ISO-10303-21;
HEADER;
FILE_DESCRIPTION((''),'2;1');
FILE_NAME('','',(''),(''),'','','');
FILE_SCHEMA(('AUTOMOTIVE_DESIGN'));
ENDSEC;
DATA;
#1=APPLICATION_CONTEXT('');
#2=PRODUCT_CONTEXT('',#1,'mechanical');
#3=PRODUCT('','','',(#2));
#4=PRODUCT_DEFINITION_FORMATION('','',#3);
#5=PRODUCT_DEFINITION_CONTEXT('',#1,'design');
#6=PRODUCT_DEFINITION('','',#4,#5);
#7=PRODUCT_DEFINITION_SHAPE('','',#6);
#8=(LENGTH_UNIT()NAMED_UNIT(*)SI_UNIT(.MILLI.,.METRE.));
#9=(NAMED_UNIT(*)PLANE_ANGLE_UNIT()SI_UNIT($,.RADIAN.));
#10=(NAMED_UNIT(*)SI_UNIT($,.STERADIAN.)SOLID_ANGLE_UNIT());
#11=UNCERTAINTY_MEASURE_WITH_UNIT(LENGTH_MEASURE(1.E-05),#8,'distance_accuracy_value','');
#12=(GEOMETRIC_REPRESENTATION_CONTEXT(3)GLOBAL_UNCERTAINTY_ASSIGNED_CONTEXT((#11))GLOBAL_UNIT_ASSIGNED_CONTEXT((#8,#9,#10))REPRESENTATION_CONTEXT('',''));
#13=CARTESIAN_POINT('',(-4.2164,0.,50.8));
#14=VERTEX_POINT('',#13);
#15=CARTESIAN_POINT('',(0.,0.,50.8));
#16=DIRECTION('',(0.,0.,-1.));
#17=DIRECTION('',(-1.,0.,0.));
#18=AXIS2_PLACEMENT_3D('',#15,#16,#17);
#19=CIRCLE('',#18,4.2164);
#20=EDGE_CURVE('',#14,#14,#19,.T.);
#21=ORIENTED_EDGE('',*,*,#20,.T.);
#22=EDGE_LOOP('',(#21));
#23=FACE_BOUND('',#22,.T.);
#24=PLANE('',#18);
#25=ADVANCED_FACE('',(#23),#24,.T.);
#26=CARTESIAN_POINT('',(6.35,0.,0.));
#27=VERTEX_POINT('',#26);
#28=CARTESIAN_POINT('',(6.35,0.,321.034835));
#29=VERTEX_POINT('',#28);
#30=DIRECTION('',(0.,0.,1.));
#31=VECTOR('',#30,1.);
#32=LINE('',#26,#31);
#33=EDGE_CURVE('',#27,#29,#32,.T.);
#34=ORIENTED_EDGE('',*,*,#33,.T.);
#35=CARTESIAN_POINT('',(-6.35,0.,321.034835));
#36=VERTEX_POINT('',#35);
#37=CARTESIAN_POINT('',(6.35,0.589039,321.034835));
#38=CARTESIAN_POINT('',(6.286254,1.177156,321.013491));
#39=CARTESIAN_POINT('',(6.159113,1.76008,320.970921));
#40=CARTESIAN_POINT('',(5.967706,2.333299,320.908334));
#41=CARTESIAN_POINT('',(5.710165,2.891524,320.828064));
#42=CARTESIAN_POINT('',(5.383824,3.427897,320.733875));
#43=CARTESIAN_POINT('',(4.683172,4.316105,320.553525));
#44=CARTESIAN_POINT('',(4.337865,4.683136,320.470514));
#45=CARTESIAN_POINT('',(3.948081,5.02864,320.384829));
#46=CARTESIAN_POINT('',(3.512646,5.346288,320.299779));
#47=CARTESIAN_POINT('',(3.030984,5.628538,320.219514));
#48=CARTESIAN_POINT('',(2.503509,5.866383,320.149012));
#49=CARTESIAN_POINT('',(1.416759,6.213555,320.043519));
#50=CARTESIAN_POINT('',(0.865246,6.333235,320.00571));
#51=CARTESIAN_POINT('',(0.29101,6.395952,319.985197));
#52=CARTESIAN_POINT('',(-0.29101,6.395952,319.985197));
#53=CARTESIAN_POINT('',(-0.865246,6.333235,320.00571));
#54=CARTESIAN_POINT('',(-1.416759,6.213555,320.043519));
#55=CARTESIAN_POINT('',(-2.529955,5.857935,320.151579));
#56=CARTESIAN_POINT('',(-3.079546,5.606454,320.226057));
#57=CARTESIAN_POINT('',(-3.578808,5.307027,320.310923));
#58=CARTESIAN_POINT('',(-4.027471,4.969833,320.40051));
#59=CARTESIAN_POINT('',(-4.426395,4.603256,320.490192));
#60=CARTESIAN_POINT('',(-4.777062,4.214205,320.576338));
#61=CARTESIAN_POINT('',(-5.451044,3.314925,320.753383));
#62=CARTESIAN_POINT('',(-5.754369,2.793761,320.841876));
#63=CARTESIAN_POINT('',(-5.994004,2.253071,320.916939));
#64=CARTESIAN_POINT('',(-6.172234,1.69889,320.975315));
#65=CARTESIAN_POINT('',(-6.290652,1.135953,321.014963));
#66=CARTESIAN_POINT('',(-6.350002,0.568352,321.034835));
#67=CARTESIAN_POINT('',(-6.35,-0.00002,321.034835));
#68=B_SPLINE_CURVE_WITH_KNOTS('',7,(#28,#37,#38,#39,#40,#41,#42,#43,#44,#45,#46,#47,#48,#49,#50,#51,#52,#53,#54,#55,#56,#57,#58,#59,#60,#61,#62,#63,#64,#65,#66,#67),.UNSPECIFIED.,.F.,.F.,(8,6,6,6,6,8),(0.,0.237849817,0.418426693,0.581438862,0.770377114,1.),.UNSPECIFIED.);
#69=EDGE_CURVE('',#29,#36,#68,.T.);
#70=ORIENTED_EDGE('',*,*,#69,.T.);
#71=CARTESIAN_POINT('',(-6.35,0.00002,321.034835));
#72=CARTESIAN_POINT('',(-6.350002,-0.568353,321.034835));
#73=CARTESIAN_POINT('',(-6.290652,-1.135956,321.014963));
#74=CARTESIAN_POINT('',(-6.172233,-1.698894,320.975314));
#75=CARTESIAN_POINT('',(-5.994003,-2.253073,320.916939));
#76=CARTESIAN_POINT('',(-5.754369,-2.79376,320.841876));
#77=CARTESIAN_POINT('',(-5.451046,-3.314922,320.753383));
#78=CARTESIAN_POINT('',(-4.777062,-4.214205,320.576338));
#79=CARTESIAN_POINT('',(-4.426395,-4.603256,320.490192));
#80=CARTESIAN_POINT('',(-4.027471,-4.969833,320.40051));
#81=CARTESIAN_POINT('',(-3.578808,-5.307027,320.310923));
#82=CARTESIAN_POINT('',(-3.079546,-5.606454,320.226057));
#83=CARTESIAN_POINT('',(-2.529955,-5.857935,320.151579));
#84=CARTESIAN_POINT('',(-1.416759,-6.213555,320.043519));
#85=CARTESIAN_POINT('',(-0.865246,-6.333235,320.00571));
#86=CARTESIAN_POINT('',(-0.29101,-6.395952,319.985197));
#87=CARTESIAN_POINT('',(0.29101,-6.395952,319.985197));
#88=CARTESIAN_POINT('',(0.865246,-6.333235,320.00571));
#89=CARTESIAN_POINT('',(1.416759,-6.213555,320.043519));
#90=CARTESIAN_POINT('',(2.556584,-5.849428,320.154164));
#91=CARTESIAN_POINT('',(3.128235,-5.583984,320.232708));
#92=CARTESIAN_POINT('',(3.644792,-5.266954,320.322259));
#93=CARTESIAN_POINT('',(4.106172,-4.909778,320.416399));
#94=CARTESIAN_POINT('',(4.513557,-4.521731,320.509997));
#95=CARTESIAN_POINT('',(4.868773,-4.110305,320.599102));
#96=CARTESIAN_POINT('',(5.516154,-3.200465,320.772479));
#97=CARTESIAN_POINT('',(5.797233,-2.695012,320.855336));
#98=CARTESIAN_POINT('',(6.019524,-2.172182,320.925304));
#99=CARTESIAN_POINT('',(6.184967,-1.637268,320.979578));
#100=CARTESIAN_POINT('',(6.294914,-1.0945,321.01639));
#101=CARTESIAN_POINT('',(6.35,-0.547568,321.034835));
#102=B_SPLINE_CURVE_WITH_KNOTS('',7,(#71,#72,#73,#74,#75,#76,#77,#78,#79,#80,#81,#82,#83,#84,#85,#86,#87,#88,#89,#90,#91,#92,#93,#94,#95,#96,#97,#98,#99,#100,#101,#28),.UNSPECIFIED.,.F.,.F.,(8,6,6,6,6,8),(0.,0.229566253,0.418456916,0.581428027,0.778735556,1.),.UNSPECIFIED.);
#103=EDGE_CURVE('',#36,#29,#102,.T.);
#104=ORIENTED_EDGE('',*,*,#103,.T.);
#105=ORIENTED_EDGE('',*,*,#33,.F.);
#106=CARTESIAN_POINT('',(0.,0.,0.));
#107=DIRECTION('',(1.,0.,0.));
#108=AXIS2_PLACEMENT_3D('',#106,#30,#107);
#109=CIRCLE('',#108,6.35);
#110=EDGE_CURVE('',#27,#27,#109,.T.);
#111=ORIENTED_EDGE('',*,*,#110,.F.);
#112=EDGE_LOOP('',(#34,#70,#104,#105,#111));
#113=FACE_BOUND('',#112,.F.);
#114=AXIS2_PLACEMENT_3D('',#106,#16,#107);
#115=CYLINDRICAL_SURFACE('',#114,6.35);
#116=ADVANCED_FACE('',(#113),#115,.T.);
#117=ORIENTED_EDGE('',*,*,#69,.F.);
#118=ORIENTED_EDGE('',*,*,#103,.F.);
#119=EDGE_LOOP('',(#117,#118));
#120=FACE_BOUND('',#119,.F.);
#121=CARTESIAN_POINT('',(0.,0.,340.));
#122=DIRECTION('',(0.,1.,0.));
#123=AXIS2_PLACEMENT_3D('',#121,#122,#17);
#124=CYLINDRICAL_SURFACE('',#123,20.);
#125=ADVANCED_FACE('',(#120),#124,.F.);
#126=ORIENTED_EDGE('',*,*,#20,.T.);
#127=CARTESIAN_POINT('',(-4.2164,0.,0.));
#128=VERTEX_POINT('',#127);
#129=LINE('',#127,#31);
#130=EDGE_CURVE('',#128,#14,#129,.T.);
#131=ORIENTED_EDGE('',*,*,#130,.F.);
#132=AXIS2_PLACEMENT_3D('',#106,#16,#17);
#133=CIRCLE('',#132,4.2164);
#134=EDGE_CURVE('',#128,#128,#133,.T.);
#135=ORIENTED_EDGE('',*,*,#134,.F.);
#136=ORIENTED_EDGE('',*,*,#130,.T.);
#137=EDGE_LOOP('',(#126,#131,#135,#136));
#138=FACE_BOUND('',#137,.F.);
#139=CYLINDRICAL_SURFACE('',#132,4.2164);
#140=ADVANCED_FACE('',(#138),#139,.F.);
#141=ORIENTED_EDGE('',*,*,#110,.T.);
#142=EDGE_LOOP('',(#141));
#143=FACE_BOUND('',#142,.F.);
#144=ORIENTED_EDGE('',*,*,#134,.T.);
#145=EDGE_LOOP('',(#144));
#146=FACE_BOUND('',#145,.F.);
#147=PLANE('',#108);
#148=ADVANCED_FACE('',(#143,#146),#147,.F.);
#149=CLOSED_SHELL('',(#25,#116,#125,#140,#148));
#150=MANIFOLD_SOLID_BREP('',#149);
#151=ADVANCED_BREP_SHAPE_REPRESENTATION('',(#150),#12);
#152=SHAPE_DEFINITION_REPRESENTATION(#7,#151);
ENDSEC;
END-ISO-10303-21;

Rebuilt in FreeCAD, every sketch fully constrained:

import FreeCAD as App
import Part
import Sketcher
Q = App.Units.Quantity

doc = App.newDocument("Part")
params = doc.addObject("Spreadsheet::Sheet", "Params")
for row, (alias, value) in enumerate([
    ("sketch1_diameter", "0.5 in"),
    ("pad1_length", "340 mm"),
    ("sketch3_diameter", "0.332 in"),
    ("pocket2_length", "2 in"),
], start=1):
    params.set(f"A{row}", alias)
    params.set(f"B{row}", "=" + value)
    params.setAlias(f"B{row}", alias)

body = doc.addObject("PartDesign::Body", "Body")

sketch1 = body.newObject("Sketcher::SketchObject", "Sketch")
sketch1.AttachmentSupport = (doc.getObject("XY_Plane"), [""])
sketch1.MapMode = "FlatFace"
sketch1.addGeometry(Part.Circle(App.Vector(0, 0, 0), App.Vector(0, 0, 1), 6), False)
sketch1.addConstraint(Sketcher.Constraint("Coincident", 0, 3, -1, 1))
sketch1.addConstraint(Sketcher.Constraint("Diameter", 0, Q("0.5 in")))
sketch1.setExpression("Constraints[1]", "Params.sketch1_diameter")
pad1 = body.newObject("PartDesign::Pad", "Pad")
pad1.Profile = sketch1
pad1.setExpression("Length", "Params.pad1_length")

sketch2 = body.newObject("Sketcher::SketchObject", "Sketch001")
sketch2.AttachmentSupport = (doc.getObject("XZ_Plane"), [""])
sketch2.MapMode = "FlatFace"
sketch2.addGeometry(Part.Circle(App.Vector(0, 340, 0), App.Vector(0, 0, 1), 20), False)
sketch2.addConstraint(Sketcher.Constraint("PointOnObject", 0, 3, -2))
sketch2.addConstraint(Sketcher.Constraint("Diameter", 0, Q("1.5748 in")))
sketch2.addConstraint(Sketcher.Constraint("DistanceY", -1, 1, 0, 3, 340.0))
pocket1 = body.newObject("PartDesign::Pocket", "Pocket")
pocket1.Profile = sketch2
pocket1.Type = "ThroughAll"
pocket1.Midplane = True

sketch3 = body.newObject("Sketcher::SketchObject", "Sketch002")
sketch3.AttachmentSupport = (doc.getObject("XY_Plane"), [""])
sketch3.MapMode = "FlatFace"
sketch3.addGeometry(Part.Circle(App.Vector(0, 0, 0), App.Vector(0, 0, 1), 4.2), False)
sketch3.addConstraint(Sketcher.Constraint("Coincident", 0, 3, -1, 1))
sketch3.addConstraint(Sketcher.Constraint("Diameter", 0, Q("0.332 in")))
sketch3.setExpression("Constraints[1]", "Params.sketch3_diameter")
pocket2 = body.newObject("PartDesign::Pocket", "Pocket001")
pocket2.Profile = sketch3
pocket2.setExpression("Length", "Params.pocket2_length")
pocket2.Reversed = True

doc.recompute()
